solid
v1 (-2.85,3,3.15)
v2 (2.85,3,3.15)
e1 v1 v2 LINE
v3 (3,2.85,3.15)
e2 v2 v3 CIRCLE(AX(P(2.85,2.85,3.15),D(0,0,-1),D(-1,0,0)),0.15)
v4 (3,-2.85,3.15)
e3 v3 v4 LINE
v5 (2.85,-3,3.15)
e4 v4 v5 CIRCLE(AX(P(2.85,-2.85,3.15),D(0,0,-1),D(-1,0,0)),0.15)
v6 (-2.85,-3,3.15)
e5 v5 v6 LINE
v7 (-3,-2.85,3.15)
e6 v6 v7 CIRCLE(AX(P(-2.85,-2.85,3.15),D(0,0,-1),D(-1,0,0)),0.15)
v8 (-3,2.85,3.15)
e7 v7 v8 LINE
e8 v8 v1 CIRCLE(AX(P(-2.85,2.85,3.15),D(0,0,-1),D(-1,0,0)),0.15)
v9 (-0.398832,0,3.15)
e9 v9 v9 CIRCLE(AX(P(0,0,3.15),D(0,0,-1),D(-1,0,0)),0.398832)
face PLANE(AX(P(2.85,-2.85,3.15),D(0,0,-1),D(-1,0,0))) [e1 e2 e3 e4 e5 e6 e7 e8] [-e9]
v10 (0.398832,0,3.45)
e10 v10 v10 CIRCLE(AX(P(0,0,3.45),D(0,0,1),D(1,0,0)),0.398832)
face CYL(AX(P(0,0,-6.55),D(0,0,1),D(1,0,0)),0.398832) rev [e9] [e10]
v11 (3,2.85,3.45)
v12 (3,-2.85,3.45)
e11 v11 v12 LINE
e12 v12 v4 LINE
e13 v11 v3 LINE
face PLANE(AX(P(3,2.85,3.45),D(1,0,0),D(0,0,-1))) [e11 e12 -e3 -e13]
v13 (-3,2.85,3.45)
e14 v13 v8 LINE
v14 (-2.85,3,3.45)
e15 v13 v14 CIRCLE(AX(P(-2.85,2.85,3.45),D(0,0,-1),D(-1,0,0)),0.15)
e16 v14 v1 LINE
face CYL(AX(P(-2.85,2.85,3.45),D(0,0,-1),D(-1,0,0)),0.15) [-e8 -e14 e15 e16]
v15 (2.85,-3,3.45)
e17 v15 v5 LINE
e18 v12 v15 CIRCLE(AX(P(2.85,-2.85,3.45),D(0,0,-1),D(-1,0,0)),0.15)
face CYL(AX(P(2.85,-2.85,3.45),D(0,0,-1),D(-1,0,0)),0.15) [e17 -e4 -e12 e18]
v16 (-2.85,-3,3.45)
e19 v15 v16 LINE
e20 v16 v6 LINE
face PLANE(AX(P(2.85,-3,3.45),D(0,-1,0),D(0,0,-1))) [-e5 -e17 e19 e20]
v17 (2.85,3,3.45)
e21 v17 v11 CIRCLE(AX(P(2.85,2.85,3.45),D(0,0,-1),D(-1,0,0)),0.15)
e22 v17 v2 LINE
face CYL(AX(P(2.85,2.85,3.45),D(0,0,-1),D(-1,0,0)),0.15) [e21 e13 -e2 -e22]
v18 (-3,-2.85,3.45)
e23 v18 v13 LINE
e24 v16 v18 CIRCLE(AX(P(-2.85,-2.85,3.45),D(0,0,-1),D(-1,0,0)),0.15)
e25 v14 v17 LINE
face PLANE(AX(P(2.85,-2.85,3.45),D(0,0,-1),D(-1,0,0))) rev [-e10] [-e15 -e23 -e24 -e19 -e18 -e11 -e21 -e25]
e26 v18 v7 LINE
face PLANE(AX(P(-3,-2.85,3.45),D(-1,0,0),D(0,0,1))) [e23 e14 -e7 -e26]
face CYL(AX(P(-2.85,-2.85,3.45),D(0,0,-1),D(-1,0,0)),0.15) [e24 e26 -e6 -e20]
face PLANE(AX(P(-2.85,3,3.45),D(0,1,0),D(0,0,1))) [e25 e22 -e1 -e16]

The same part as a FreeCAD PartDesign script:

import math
import FreeCAD as App
import Part
import Sketcher

V = App.Vector
Q = App.Units.Quantity

doc = App.newDocument("Part")
body = doc.addObject("PartDesign::Body", "Body")

sketch1 = body.newObject("Sketcher::SketchObject", "Sketch")
sketch1.AttachmentSupport = (doc.getObject("XY_Plane"), [""])
sketch1.MapMode = "FlatFace"
sketch1.AttachmentOffset = App.Placement(V(0, 0, 3.15), App.Rotation())
sketch1.addGeometry(Part.LineSegment(V(2.85, -3, 0), V(-2.85, -3, 0)), False)
sketch1.addGeometry(Part.ArcOfCircle(Part.Circle(V(-2.85, -2.85, 0), V(0, 0, 1), 0.15), math.radians(-180), math.radians(-90)), False)
sketch1.addGeometry(Part.LineSegment(V(-3, -2.85, 0), V(-3, 2.85, 0)), False)
sketch1.addGeometry(Part.ArcOfCircle(Part.Circle(V(-2.85, 2.85, 0), V(0, 0, 1), 0.15), math.radians(90), math.radians(180)), False)
sketch1.addGeometry(Part.LineSegment(V(-2.85, 3, 0), V(2.85, 3, 0)), False)
sketch1.addGeometry(Part.ArcOfCircle(Part.Circle(V(2.85, 2.85, 0), V(0, 0, 1), 0.15), math.radians(0), math.radians(90)), False)
sketch1.addGeometry(Part.LineSegment(V(3, 2.85, 0), V(3, -2.85, 0)), False)
sketch1.addGeometry(Part.ArcOfCircle(Part.Circle(V(2.85, -2.85, 0), V(0, 0, 1), 0.15), math.radians(-90), math.radians(0)), False)
sketch1.addConstraint(Sketcher.Constraint("Tangent", 0, 2, 1, 2))
sketch1.addConstraint(Sketcher.Constraint("Tangent", 1, 1, 2, 1))
sketch1.addConstraint(Sketcher.Constraint("Tangent", 2, 2, 3, 2))
sketch1.addConstraint(Sketcher.Constraint("Tangent", 3, 1, 4, 1))
sketch1.addConstraint(Sketcher.Constraint("Tangent", 4, 2, 5, 2))
sketch1.addConstraint(Sketcher.Constraint("Tangent", 5, 1, 6, 1))
sketch1.addConstraint(Sketcher.Constraint("Tangent", 6, 2, 7, 2))
sketch1.addConstraint(Sketcher.Constraint("Tangent", 7, 1, 0, 1))
sketch1.addConstraint(Sketcher.Constraint("Horizontal", 0))
sketch1.addConstraint(Sketcher.Constraint("Vertical", 2))
sketch1.addConstraint(Sketcher.Constraint("Horizontal", 4))
sketch1.addConstraint(Sketcher.Constraint("Vertical", 6))
sketch1.addConstraint(Sketcher.Constraint("Equal", 1, 3))
sketch1.addConstraint(Sketcher.Constraint("Equal", 3, 5))
sketch1.addConstraint(Sketcher.Constraint("Equal", 5, 7))
sketch1.addConstraint(Sketcher.Constraint("Symmetric", 1, 3, 5, 3, -1, 1))
sketch1.addConstraint(Sketcher.Constraint("Equal", 4, 2))
sketch1.addConstraint(Sketcher.Constraint("Radius", 1, Q("0.15 mm")))
sketch1.addConstraint(Sketcher.Constraint("DistanceX", 0, 2, 0, 1, Q("5.7 mm")))
pad1 = body.newObject("PartDesign::Pad", "Pad")
pad1.Profile = sketch1
pad1.Length = 0.3

sketch2 = body.newObject("Sketcher::SketchObject", "Sketch001")
sketch2.AttachmentSupport = (doc.getObject("XY_Plane"), [""])
sketch2.MapMode = "FlatFace"
sketch2.AttachmentOffset = App.Placement(V(0, 0, 3.45), App.Rotation())
sketch2.addGeometry(Part.Circle(V(0, 0, 0), V(0, 0, 1), 0.4), False)
sketch2.addConstraint(Sketcher.Constraint("Coincident", 0, 3, -1, 1))
sketch2.addConstraint(Sketcher.Constraint("Diameter", 0, Q("0.797664 mm")))
pocket1 = body.newObject("PartDesign::Pocket", "Pocket")
pocket1.Profile = sketch2
pocket1.Length = 10

doc.recompute()
